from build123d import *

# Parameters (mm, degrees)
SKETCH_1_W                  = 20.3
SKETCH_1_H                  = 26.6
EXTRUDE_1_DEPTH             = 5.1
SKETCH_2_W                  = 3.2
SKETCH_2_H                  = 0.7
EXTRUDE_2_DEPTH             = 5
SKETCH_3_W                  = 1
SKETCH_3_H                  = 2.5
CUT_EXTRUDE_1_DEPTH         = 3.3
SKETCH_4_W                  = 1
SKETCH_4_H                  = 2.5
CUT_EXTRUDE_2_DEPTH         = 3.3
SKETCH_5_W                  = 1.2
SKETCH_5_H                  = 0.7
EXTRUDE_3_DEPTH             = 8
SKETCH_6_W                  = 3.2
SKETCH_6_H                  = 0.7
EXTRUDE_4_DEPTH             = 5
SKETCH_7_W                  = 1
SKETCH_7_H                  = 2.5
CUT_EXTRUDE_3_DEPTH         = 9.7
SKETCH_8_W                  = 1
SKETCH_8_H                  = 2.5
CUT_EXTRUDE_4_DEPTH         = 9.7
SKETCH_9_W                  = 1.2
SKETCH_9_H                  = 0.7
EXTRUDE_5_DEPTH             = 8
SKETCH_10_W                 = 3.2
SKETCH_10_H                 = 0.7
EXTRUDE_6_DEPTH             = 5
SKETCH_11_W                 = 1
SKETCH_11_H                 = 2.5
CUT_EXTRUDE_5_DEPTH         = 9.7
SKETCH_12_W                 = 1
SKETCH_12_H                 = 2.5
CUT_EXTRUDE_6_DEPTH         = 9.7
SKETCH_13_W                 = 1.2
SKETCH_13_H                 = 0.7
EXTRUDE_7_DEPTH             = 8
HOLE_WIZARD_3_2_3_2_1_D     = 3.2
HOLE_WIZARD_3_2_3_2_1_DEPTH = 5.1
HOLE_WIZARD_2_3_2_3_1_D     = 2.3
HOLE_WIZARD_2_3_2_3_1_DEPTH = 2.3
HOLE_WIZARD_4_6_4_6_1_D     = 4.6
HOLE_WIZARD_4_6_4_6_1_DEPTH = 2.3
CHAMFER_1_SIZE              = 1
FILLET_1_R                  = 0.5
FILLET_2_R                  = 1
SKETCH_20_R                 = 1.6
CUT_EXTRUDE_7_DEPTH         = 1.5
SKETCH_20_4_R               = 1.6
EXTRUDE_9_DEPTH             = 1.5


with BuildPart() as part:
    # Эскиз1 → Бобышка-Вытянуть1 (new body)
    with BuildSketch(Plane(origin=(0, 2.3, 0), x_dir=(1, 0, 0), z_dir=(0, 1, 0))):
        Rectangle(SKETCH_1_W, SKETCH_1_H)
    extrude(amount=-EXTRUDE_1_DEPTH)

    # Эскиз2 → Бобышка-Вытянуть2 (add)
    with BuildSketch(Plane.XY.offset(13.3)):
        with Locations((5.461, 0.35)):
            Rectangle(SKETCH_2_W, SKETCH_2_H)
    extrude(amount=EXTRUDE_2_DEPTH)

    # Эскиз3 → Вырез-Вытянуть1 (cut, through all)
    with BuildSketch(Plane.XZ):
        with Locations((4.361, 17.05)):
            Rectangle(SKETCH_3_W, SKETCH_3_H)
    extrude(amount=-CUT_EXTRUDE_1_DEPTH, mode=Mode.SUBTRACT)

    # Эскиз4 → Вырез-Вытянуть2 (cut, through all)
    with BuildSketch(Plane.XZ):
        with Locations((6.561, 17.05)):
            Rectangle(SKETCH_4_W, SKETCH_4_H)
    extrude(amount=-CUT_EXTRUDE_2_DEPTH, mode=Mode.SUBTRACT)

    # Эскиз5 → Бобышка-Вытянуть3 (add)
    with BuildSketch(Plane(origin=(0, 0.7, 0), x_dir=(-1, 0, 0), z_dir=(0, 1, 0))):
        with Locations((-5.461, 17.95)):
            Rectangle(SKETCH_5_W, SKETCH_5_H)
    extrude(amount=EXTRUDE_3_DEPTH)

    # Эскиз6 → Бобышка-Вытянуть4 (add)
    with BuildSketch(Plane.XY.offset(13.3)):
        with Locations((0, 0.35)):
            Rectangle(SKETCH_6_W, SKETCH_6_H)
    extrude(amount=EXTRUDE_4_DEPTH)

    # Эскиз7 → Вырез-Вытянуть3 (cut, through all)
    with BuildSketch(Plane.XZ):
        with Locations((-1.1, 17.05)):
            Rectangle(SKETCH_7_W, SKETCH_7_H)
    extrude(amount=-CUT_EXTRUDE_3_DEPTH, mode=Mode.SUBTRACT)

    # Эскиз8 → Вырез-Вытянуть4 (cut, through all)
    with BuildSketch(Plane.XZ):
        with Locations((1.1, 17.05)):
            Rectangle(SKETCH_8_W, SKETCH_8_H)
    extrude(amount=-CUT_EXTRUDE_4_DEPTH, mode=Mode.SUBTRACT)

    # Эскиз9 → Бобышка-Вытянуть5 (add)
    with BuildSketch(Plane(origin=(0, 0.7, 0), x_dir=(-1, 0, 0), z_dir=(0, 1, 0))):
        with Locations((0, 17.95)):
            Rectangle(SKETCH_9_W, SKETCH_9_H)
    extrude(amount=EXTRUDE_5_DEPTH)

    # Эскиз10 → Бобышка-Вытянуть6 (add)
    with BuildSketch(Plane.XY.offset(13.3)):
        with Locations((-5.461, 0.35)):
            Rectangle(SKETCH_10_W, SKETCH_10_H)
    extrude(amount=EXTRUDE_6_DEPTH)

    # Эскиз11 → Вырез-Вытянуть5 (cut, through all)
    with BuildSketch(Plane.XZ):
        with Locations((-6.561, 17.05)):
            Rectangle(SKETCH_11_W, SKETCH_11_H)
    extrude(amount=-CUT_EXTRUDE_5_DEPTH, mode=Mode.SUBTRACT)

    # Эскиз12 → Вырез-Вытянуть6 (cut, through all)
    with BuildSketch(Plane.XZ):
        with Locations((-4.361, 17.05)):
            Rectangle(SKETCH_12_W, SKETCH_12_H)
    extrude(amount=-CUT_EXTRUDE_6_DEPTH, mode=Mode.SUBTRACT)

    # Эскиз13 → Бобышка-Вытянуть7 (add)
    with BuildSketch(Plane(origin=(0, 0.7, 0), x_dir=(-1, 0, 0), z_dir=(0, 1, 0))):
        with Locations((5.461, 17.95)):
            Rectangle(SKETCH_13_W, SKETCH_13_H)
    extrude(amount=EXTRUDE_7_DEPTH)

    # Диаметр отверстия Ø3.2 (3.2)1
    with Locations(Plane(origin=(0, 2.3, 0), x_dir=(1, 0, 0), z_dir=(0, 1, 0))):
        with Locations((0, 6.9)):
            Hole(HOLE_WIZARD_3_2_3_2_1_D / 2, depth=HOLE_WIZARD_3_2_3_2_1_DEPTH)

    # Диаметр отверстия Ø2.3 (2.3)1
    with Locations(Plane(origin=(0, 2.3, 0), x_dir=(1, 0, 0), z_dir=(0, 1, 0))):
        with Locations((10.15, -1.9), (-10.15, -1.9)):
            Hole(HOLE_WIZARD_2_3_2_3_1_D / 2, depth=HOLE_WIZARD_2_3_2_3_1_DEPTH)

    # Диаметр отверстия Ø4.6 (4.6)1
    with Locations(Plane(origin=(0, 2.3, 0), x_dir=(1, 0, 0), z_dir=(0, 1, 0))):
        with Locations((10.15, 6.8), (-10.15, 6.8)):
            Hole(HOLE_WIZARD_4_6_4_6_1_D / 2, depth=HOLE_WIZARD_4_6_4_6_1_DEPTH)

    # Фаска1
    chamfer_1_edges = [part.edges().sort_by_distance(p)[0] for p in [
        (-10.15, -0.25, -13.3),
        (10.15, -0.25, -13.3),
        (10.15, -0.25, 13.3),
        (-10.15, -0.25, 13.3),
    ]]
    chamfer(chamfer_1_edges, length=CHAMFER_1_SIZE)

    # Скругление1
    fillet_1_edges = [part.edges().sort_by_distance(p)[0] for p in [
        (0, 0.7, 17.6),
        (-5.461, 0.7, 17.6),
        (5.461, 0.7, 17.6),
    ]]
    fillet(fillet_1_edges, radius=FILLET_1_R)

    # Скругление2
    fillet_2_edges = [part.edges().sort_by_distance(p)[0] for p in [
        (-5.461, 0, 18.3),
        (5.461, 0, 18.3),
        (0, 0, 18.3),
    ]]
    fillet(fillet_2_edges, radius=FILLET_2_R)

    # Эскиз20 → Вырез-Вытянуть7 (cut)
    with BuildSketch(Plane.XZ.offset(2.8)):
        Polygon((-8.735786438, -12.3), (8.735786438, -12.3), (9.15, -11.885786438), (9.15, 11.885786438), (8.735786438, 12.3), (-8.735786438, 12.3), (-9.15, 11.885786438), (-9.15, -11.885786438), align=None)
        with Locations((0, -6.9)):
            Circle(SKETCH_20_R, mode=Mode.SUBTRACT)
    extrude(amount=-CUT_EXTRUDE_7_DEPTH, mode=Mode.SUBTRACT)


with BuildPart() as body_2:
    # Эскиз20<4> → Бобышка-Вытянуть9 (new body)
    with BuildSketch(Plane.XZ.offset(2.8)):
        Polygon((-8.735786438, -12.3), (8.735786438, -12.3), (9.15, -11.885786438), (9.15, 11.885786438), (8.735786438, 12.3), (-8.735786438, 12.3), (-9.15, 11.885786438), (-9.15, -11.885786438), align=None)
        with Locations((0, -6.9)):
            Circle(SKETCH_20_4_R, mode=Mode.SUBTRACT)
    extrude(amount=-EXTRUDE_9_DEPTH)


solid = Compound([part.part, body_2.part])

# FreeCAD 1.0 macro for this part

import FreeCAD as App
import Part
import Sketcher


def edges_at(feature, points):
    """Names of the edges that pass closest to the given points."""
    edges = feature.Shape.Edges
    near = lambda p: min(range(len(edges)), key=lambda i: edges[i].distToShape(Part.Vertex(*p))[0])
    return sorted({f"Edge{near(p) + 1}" for p in points})


def add_polygon(sketch, points):
    """Adds a closed chain of lines whose ends are joined by coincident constraints."""
    first, n = sketch.GeometryCount, len(points)
    for a, b in zip(points, points[1:] + points[:1]):
        sketch.addGeometry(Part.LineSegment(App.Vector(*a, 0), App.Vector(*b, 0)), False)
    for i in range(n):
        sketch.addConstraint(Sketcher.Constraint("Coincident", first + i, 2, first + (i + 1) % n, 1))

doc = App.newDocument("Part")
body = doc.addObject("PartDesign::Body", "Body")

sketch1 = body.newObject("Sketcher::SketchObject", "Sketch")
sketch1.AttachmentSupport = (doc.getObject("XZ_Plane"), [""])
sketch1.MapMode = "FlatFace"
sketch1.AttachmentOffset = App.Placement(App.Vector(0, 0, -2.3), App.Rotation())
add_polygon(sketch1, [(-10, -13), (-10, 13), (10, 13), (10, -13)])
sketch1.addConstraint([
    Sketcher.Constraint("Vertical", 0),
    Sketcher.Constraint("Horizontal", 1),
    Sketcher.Constraint("Vertical", 2),
    Sketcher.Constraint("Horizontal", 3),
    Sketcher.Constraint("Symmetric", 0, 2, 2, 2, -1, 1),
    Sketcher.Constraint("DistanceX", 1, 1, 1, 2, 20.3),
    Sketcher.Constraint("DistanceY", 0, 1, 0, 2, 26.6),
])
pad1 = body.newObject("PartDesign::Pad", "Pad")
pad1.Profile = sketch1
pad1.Length = 5.1

sketch2 = body.newObject("Sketcher::SketchObject", "Sketch001")
sketch2.AttachmentSupport = (doc.getObject("XY_Plane"), [""])
sketch2.MapMode = "FlatFace"
sketch2.AttachmentOffset = App.Placement(App.Vector(0, 0, 13.3), App.Rotation())
add_polygon(sketch2, [(3.9, 0.7), (3.9, 0), (7.1, 0), (7.1, 0.7)])
sketch2.addConstraint([
    Sketcher.Constraint("Vertical", 0),
    Sketcher.Constraint("Horizontal", 1),
    Sketcher.Constraint("Vertical", 2),
    Sketcher.Constraint("Horizontal", 3),
    Sketcher.Constraint("PointOnObject", 0, 2, -1),
    Sketcher.Constraint("DistanceX", 1, 1, 1, 2, 3.2),
    Sketcher.Constraint("DistanceY", 0, 2, 0, 1, 0.7),
    Sketcher.Constraint("DistanceX", -1, 1, 0, 2, 3.861),
])
pad2 = body.newObject("PartDesign::Pad", "Pad001")
pad2.Profile = sketch2
pad2.Length = 5

sketch3 = body.newObject("Sketcher::SketchObject", "Sketch002")
sketch3.AttachmentSupport = (doc.getObject("XZ_Plane"), [""])
sketch3.MapMode = "FlatFace"
add_polygon(sketch3, [(3.9, 18.3), (3.9, 15.8), (4.9, 15.8), (4.9, 18.3)])
sketch3.addConstraint([
    Sketcher.Constraint("Vertical", 0),
    Sketcher.Constraint("Horizontal", 1),
    Sketcher.Constraint("Vertical", 2),
    Sketcher.Constraint("Horizontal", 3),
    Sketcher.Constraint("DistanceX", 1, 1, 1, 2, 1.0),
    Sketcher.Constraint("DistanceY", 0, 2, 0, 1, 2.5),
    Sketcher.Constraint("DistanceY", -1, 1, 0, 2, 15.8),
    Sketcher.Constraint("DistanceX", -1, 1, 0, 2, 3.861),
])
pocket1 = body.newObject("PartDesign::Pocket", "Pocket")
pocket1.Profile = sketch3
pocket1.Type = "ThroughAll"

sketch4 = body.newObject("Sketcher::SketchObject", "Sketch003")
sketch4.AttachmentSupport = (doc.getObject("XZ_Plane"), [""])
sketch4.MapMode = "FlatFace"
add_polygon(sketch4, [(6.1, 18.3), (6.1, 15.8), (7.1, 15.8), (7.1, 18.3)])
sketch4.addConstraint([
    Sketcher.Constraint("Vertical", 0),
    Sketcher.Constraint("Horizontal", 1),
    Sketcher.Constraint("Vertical", 2),
    Sketcher.Constraint("Horizontal", 3),
    Sketcher.Constraint("DistanceX", 1, 1, 1, 2, 1.0),
    Sketcher.Constraint("DistanceY", 0, 2, 0, 1, 2.5),
    Sketcher.Constraint("DistanceY", -1, 1, 0, 2, 15.8),
    Sketcher.Constraint("DistanceX", -1, 1, 0, 2, 6.061),
])
pocket2 = body.newObject("PartDesign::Pocket", "Pocket001")
pocket2.Profile = sketch4
pocket2.Type = "ThroughAll"

sketch5 = body.newObject("Sketcher::SketchObject", "Sketch004")
sketch5.AttachmentSupport = (doc.getObject("XZ_Plane"), [""])
sketch5.MapMode = "FlatFace"
sketch5.AttachmentOffset = App.Placement(App.Vector(0, 0, -0.7), App.Rotation())
add_polygon(sketch5, [(6.1, 18.3), (6.1, 17.6), (4.9, 17.6), (4.9, 18.3)])
sketch5.addConstraint([
    Sketcher.Constraint("Vertical", 0),
    Sketcher.Constraint("Horizontal", 1),
    Sketcher.Constraint("Vertical", 2),
    Sketcher.Constraint("Horizontal", 3),
    Sketcher.Constraint("DistanceX", 1, 2, 1, 1, 1.2),
    Sketcher.Constraint("DistanceY", 0, 2, 0, 1, 0.7),
    Sketcher.Constraint("DistanceY", -1, 1, 0, 2, 17.6),
    Sketcher.Constraint("DistanceX", -1, 1, 0, 2, 6.061),
])
pad3 = body.newObject("PartDesign::Pad", "Pad002")
pad3.Profile = sketch5
pad3.Length = 8
pad3.Reversed = True

sketch6 = body.newObject("Sketcher::SketchObject", "Sketch005")
sketch6.AttachmentSupport = (doc.getObject("XY_Plane"), [""])
sketch6.MapMode = "FlatFace"
sketch6.AttachmentOffset = App.Placement(App.Vector(0, 0, 13.3), App.Rotation())
add_polygon(sketch6, [(-1.6, 0.7), (-1.6, 0), (1.6, 0), (1.6, 0.7)])
sketch6.addConstraint([
    Sketcher.Constraint("Vertical", 0),
    Sketcher.Constraint("Horizontal", 1),
    Sketcher.Constraint("Vertical", 2),
    Sketcher.Constraint("Horizontal", 3),
    Sketcher.Constraint("Symmetric", 0, 2, 1, 2, -1, 1),
    Sketcher.Constraint("DistanceX", 1, 1, 1, 2, 3.2),
    Sketcher.Constraint("DistanceY", 0, 2, 0, 1, 0.7),
])
pad4 = body.newObject("PartDesign::Pad", "Pad003")
pad4.Profile = sketch6
pad4.Length = 5

sketch7 = body.newObject("Sketcher::SketchObject", "Sketch006")
sketch7.AttachmentSupport = (doc.getObject("XZ_Plane"), [""])
sketch7.MapMode = "FlatFace"
add_polygon(sketch7, [(-1.6, 18.3), (-1.6, 15.8), (-0.6, 15.8), (-0.6, 18.3)])
sketch7.addConstraint([
    Sketcher.Constraint("Vertical", 0),
    Sketcher.Constraint("Horizontal", 1),
    Sketcher.Constraint("Vertical", 2),
    Sketcher.Constraint("Horizontal", 3),
    Sketcher.Constraint("DistanceX", 1, 1, 1, 2, 1.0),
    Sketcher.Constraint("DistanceY", 0, 2, 0, 1, 2.5),
    Sketcher.Constraint("DistanceX", 0, 2, -1, 1, 1.6),
    Sketcher.Constraint("DistanceY", -1, 1, 0, 2, 15.8),
])
pocket3 = body.newObject("PartDesign::Pocket", "Pocket002")
pocket3.Profile = sketch7
pocket3.Type = "ThroughAll"

sketch8 = body.newObject("Sketcher::SketchObject", "Sketch007")
sketch8.AttachmentSupport = (doc.getObject("XZ_Plane"), [""])
sketch8.MapMode = "FlatFace"
add_polygon(sketch8, [(0.6, 18.3), (0.6, 15.8), (1.6, 15.8), (1.6, 18.3)])
sketch8.addConstraint([
    Sketcher.Constraint("Vertical", 0),
    Sketcher.Constraint("Horizontal", 1),
    Sketcher.Constraint("Vertical", 2),
    Sketcher.Constraint("Horizontal", 3),
    Sketcher.Constraint("DistanceX", 1, 1, 1, 2, 1.0),
    Sketcher.Constraint("DistanceY", 0, 2, 0, 1, 2.5),
    Sketcher.Constraint("DistanceX", -1, 1, 0, 2, 0.6),
    Sketcher.Constraint("DistanceY", -1, 1, 0, 2, 15.8),
])
pocket4 = body.newObject("PartDesign::Pocket", "Pocket003")
pocket4.Profile = sketch8
pocket4.Type = "ThroughAll"

sketch9 = body.newObject("Sketcher::SketchObject", "Sketch008")
sketch9.AttachmentSupport = (doc.getObject("XZ_Plane"), [""])
sketch9.MapMode = "FlatFace"
sketch9.AttachmentOffset = App.Placement(App.Vector(0, 0, -0.7), App.Rotation())
add_polygon(sketch9, [(0.6, 18.3), (0.6, 17.6), (-0.6, 17.6), (-0.6, 18.3)])
sketch9.addConstraint([
    Sketcher.Constraint("Vertical", 0),
    Sketcher.Constraint("Horizontal", 1),
    Sketcher.Constraint("Vertical", 2),
    Sketcher.Constraint("Horizontal", 3),
    Sketcher.Constraint("DistanceX", 1, 2, 1, 1, 1.2),
    Sketcher.Constraint("DistanceY", 0, 2, 0, 1, 0.7),
    Sketcher.Constraint("DistanceX", -1, 1, 0, 2, 0.6),
    Sketcher.Constraint("DistanceY", -1, 1, 0, 2, 17.6),
])
pad5 = body.newObject("PartDesign::Pad", "Pad004")
pad5.Profile = sketch9
pad5.Length = 8
pad5.Reversed = True

sketch10 = body.newObject("Sketcher::SketchObject", "Sketch009")
sketch10.AttachmentSupport = (doc.getObject("XY_Plane"), [""])
sketch10.MapMode = "FlatFace"
sketch10.AttachmentOffset = App.Placement(App.Vector(0, 0, 13.3), App.Rotation())
add_polygon(sketch10, [(-7.1, 0.7), (-7.1, 0), (-3.9, 0), (-3.9, 0.7)])
sketch10.addConstraint([
    Sketcher.Constraint("Vertical", 0),
    Sketcher.Constraint("Horizontal", 1),
    Sketcher.Constraint("Vertical", 2),
    Sketcher.Constraint("Horizontal", 3),
    Sketcher.Constraint("PointOnObject", 0, 2, -1),
    Sketcher.Constraint("DistanceX", 1, 1, 1, 2, 3.2),
    Sketcher.Constraint("DistanceY", 0, 2, 0, 1, 0.7),
    Sketcher.Constraint("DistanceX", 0, 2, -1, 1, 7.061),
])
pad6 = body.newObject("PartDesign::Pad", "Pad005")
pad6.Profile = sketch10
pad6.Length = 5

sketch11 = body.newObject("Sketcher::SketchObject", "Sketch010")
sketch11.AttachmentSupport = (doc.getObject("XZ_Plane"), [""])
sketch11.MapMode = "FlatFace"
add_polygon(sketch11, [(-7.1, 18.3), (-7.1, 15.8), (-6.1, 15.8), (-6.1, 18.3)])
sketch11.addConstraint([
    Sketcher.Constraint("Vertical", 0),
    Sketcher.Constraint("Horizontal", 1),
    Sketcher.Constraint("Vertical", 2),
    Sketcher.Constraint("Horizontal", 3),
    Sketcher.Constraint("DistanceX", 1, 1, 1, 2, 1.0),
    Sketcher.Constraint("DistanceY", 0, 2, 0, 1, 2.5),
    Sketcher.Constraint("DistanceY", -1, 1, 0, 2, 15.8),
    Sketcher.Constraint("DistanceX", 0, 2, -1, 1, 7.061),
])
pocket5 = body.newObject("PartDesign::Pocket", "Pocket004")
pocket5.Profile = sketch11
pocket5.Type = "ThroughAll"

sketch12 = body.newObject("Sketcher::SketchObject", "Sketch011")
sketch12.AttachmentSupport = (doc.getObject("XZ_Plane"), [""])
sketch12.MapMode = "FlatFace"
add_polygon(sketch12, [(-4.9, 18.3), (-4.9, 15.8), (-3.9, 15.8), (-3.9, 18.3)])
sketch12.addConstraint([
    Sketcher.Constraint("Vertical", 0),
    Sketcher.Constraint("Horizontal", 1),
    Sketcher.Constraint("Vertical", 2),
    Sketcher.Constraint("Horizontal", 3),
    Sketcher.Constraint("DistanceX", 1, 1, 1, 2, 1.0),
    Sketcher.Constraint("DistanceY", 0, 2, 0, 1, 2.5),
    Sketcher.Constraint("DistanceY", -1, 1, 0, 2, 15.8),
    Sketcher.Constraint("DistanceX", 0, 2, -1, 1, 4.861),
])
pocket6 = body.newObject("PartDesign::Pocket", "Pocket005")
pocket6.Profile = sketch12
pocket6.Type = "ThroughAll"

sketch13 = body.newObject("Sketcher::SketchObject", "Sketch012")
sketch13.AttachmentSupport = (doc.getObject("XZ_Plane"), [""])
sketch13.MapMode = "FlatFace"
sketch13.AttachmentOffset = App.Placement(App.Vector(0, 0, -0.7), App.Rotation())
add_polygon(sketch13, [(-4.9, 18.3), (-4.9, 17.6), (-6.1, 17.6), (-6.1, 18.3)])
sketch13.addConstraint([
    Sketcher.Constraint("Vertical", 0),
    Sketcher.Constraint("Horizontal", 1),
    Sketcher.Constraint("Vertical", 2),
    Sketcher.Constraint("Horizontal", 3),
    Sketcher.Constraint("DistanceX", 1, 2, 1, 1, 1.2),
    Sketcher.Constraint("DistanceY", 0, 2, 0, 1, 0.7),
    Sketcher.Constraint("DistanceY", -1, 1, 0, 2, 17.6),
    Sketcher.Constraint("DistanceX", 0, 2, -1, 1, 4.861),
])
pad7 = body.newObject("PartDesign::Pad", "Pad006")
pad7.Profile = sketch13
pad7.Length = 8
pad7.Reversed = True

sketch14 = body.newObject("Sketcher::SketchObject", "Sketch013")
sketch14.AttachmentSupport = (doc.getObject("XZ_Plane"), [""])
sketch14.MapMode = "FlatFace"
sketch14.AttachmentOffset = App.Placement(App.Vector(0, 0, -2.3), App.Rotation())
sketch14.addGeometry(Part.Circle(App.Vector(0, -6.9, 0), App.Vector(0, 0, 1), 1.6), False)
sketch14.addConstraint([
    Sketcher.Constraint("PointOnObject", 0, 3, -2),
    Sketcher.Constraint("Diameter", 0, 3.2),
    Sketcher.Constraint("DistanceY", 0, 3, -1, 1, 6.9),
])
doc.recompute()
hole = body.newObject("PartDesign::Hole", "Hole")
hole.Profile = sketch14
hole.ThreadType = "None"
hole.Diameter = 3.2
hole.DepthType = "Dimension"
hole.Depth = 5.1
hole.DrillPoint = "Flat"
hole.Reversed = True

sketch15 = body.newObject("Sketcher::SketchObject", "Sketch014")
sketch15.AttachmentSupport = (doc.getObject("XZ_Plane"), [""])
sketch15.MapMode = "FlatFace"
sketch15.AttachmentOffset = App.Placement(App.Vector(0, 0, -2.3), App.Rotation())
sketch15.addGeometry([
    Part.Circle(App.Vector(10.2, 1.9, 0), App.Vector(0, 0, 1), 1.1),
    Part.Circle(App.Vector(-10.2, 1.9, 0), App.Vector(0, 0, 1), 1.1),
], False)
sketch15.addConstraint([
    Sketcher.Constraint("Equal", 0, 1),
    Sketcher.Constraint("Symmetric", 0, 3, 1, 3, -2),
    Sketcher.Constraint("Diameter", 0, 2.3),
    Sketcher.Constraint("DistanceY", -1, 1, 0, 3, 1.9),
    Sketcher.Constraint("DistanceX", 1, 3, 0, 3, 20.3),
])
doc.recompute()
hole2 = body.newObject("PartDesign::Hole", "Hole001")
hole2.Profile = sketch15
hole2.ThreadType = "None"
hole2.Diameter = 2.3
hole2.DepthType = "Dimension"
hole2.Depth = 2.3
hole2.DrillPoint = "Flat"
hole2.Reversed = True

sketch16 = body.newObject("Sketcher::SketchObject", "Sketch015")
sketch16.AttachmentSupport = (doc.getObject("XZ_Plane"), [""])
sketch16.MapMode = "FlatFace"
sketch16.AttachmentOffset = App.Placement(App.Vector(0, 0, -2.3), App.Rotation())
sketch16.addGeometry([
    Part.Circle(App.Vector(10.2, -6.8, 0), App.Vector(0, 0, 1), 2.3),
    Part.Circle(App.Vector(-10.2, -6.8, 0), App.Vector(0, 0, 1), 2.3),
], False)
sketch16.addConstraint([
    Sketcher.Constraint("Equal", 0, 1),
    Sketcher.Constraint("Symmetric", 0, 3, 1, 3, -2),
    Sketcher.Constraint("Diameter", 0, 4.6),
    Sketcher.Constraint("DistanceY", 0, 3, -1, 1, 6.8),
    Sketcher.Constraint("DistanceX", 1, 3, 0, 3, 20.3),
])
doc.recompute()
hole3 = body.newObject("PartDesign::Hole", "Hole002")
hole3.Profile = sketch16
hole3.ThreadType = "None"
hole3.Diameter = 4.6
hole3.DepthType = "Dimension"
hole3.Depth = 2.3
hole3.DrillPoint = "Flat"
hole3.Reversed = True
doc.recompute()

chamfer = body.newObject("PartDesign::Chamfer", "Chamfer")
chamfer.Base = (hole3, edges_at(hole3, [
    (-10.15, -0.25, -13.3),
    (10.15, -0.25, -13.3),
    (10.15, -0.25, 13.3),
    (-10.15, -0.25, 13.3),
]))
chamfer.Size = 1
doc.recompute()

fillet = body.newObject("PartDesign::Fillet", "Fillet")
fillet.Base = (chamfer, edges_at(chamfer, [(0, 0.7, 17.6), (-5.461, 0.7, 17.6), (5.461, 0.7, 17.6)]))
fillet.Radius = 0.5
doc.recompute()

fillet2 = body.newObject("PartDesign::Fillet", "Fillet001")
fillet2.Base = (fillet, edges_at(fillet, [(-5.461, 0, 18.3), (5.461, 0, 18.3), (0, 0, 18.3)]))
fillet2.Radius = 1

sketch17 = body.newObject("Sketcher::SketchObject", "Sketch016")
sketch17.AttachmentSupport = (doc.getObject("XZ_Plane"), [""])
sketch17.MapMode = "FlatFace"
sketch17.AttachmentOffset = App.Placement(App.Vector(0, 0, 2.8), App.Rotation())
add_polygon(sketch17, [(-8.7, -12.3), (8.7, -12.3), (9.2, -11.9), (9.2, 11.9), (8.7, 12.3), (-8.7, 12.3), (-9.2, 11.9), (-9.2, -11.9)])
sketch17.addGeometry(Part.Circle(App.Vector(0, -6.9, 0), App.Vector(0, 0, 1), 1.6), False)
sketch17.addConstraint([
    Sketcher.Constraint("Horizontal", 0),
    Sketcher.Constraint("Vertical", 2),
    Sketcher.Constraint("Horizontal", 4),
    Sketcher.Constraint("Vertical", 6),
    Sketcher.Constraint("Symmetric", 0, 2, 4, 2, -1, 1),
    Sketcher.Constraint("Symmetric", 1, 2, 5, 2, -1, 1),
    Sketcher.Constraint("PointOnObject", 8, 3, -2),
    Sketcher.Constraint("Perpendicular", 1, 3),
    Sketcher.Constraint("Perpendicular", 5, 7),
    Sketcher.Constraint("Horizontal", 2, 2, 5, 2),
    Sketcher.Constraint("Horizontal", 1, 2, 6, 2),
    Sketcher.Constraint("Vertical", 0, 2, 3, 2),
    Sketcher.Constraint("Diameter", 8, 3.2),
    Sketcher.Constraint("DistanceY", 8, 3, -1, 1, 6.9),
    Sketcher.Constraint("DistanceY", 0, 2, -1, 1, 12.3),
    Sketcher.Constraint("DistanceX", 5, 2, 2, 2, 18.3),
    Sketcher.Constraint("DistanceX", 0, 1, 0, 2, 17.471573),
])
pocket7 = body.newObject("PartDesign::Pocket", "Pocket006")
pocket7.Profile = sketch17
pocket7.Length = 1.5
body2 = doc.addObject("PartDesign::Body", "Body001")

sketch18 = body2.newObject("Sketcher::SketchObject", "Sketch017")
sketch18.AttachmentSupport = (doc.getObject("XZ_Plane001"), [""])
sketch18.MapMode = "FlatFace"
sketch18.AttachmentOffset = App.Placement(App.Vector(0, 0, 2.8), App.Rotation())
add_polygon(sketch18, [(-8.7, -12.3), (8.7, -12.3), (9.2, -11.9), (9.2, 11.9), (8.7, 12.3), (-8.7, 12.3), (-9.2, 11.9), (-9.2, -11.9)])
sketch18.addGeometry(Part.Circle(App.Vector(0, -6.9, 0), App.Vector(0, 0, 1), 1.6), False)
sketch18.addConstraint([
    Sketcher.Constraint("Horizontal", 0),
    Sketcher.Constraint("Vertical", 2),
    Sketcher.Constraint("Horizontal", 4),
    Sketcher.Constraint("Vertical", 6),
    Sketcher.Constraint("Symmetric", 0, 2, 4, 2, -1, 1),
    Sketcher.Constraint("Symmetric", 1, 2, 5, 2, -1, 1),
    Sketcher.Constraint("PointOnObject", 8, 3, -2),
    Sketcher.Constraint("Perpendicular", 1, 3),
    Sketcher.Constraint("Perpendicular", 5, 7),
    Sketcher.Constraint("Horizontal", 2, 2, 5, 2),
    Sketcher.Constraint("Horizontal", 1, 2, 6, 2),
    Sketcher.Constraint("Vertical", 0, 2, 3, 2),
    Sketcher.Constraint("Diameter", 8, 3.2),
    Sketcher.Constraint("DistanceY", 8, 3, -1, 1, 6.9),
    Sketcher.Constraint("DistanceY", 0, 2, -1, 1, 12.3),
    Sketcher.Constraint("DistanceX", 5, 2, 2, 2, 18.3),
    Sketcher.Constraint("DistanceX", 0, 1, 0, 2, 17.471573),
])
pad8 = body2.newObject("PartDesign::Pad", "Pad007")
pad8.Profile = sketch18
pad8.Length = 1.5
pad8.Reversed = True

doc.recompute()
